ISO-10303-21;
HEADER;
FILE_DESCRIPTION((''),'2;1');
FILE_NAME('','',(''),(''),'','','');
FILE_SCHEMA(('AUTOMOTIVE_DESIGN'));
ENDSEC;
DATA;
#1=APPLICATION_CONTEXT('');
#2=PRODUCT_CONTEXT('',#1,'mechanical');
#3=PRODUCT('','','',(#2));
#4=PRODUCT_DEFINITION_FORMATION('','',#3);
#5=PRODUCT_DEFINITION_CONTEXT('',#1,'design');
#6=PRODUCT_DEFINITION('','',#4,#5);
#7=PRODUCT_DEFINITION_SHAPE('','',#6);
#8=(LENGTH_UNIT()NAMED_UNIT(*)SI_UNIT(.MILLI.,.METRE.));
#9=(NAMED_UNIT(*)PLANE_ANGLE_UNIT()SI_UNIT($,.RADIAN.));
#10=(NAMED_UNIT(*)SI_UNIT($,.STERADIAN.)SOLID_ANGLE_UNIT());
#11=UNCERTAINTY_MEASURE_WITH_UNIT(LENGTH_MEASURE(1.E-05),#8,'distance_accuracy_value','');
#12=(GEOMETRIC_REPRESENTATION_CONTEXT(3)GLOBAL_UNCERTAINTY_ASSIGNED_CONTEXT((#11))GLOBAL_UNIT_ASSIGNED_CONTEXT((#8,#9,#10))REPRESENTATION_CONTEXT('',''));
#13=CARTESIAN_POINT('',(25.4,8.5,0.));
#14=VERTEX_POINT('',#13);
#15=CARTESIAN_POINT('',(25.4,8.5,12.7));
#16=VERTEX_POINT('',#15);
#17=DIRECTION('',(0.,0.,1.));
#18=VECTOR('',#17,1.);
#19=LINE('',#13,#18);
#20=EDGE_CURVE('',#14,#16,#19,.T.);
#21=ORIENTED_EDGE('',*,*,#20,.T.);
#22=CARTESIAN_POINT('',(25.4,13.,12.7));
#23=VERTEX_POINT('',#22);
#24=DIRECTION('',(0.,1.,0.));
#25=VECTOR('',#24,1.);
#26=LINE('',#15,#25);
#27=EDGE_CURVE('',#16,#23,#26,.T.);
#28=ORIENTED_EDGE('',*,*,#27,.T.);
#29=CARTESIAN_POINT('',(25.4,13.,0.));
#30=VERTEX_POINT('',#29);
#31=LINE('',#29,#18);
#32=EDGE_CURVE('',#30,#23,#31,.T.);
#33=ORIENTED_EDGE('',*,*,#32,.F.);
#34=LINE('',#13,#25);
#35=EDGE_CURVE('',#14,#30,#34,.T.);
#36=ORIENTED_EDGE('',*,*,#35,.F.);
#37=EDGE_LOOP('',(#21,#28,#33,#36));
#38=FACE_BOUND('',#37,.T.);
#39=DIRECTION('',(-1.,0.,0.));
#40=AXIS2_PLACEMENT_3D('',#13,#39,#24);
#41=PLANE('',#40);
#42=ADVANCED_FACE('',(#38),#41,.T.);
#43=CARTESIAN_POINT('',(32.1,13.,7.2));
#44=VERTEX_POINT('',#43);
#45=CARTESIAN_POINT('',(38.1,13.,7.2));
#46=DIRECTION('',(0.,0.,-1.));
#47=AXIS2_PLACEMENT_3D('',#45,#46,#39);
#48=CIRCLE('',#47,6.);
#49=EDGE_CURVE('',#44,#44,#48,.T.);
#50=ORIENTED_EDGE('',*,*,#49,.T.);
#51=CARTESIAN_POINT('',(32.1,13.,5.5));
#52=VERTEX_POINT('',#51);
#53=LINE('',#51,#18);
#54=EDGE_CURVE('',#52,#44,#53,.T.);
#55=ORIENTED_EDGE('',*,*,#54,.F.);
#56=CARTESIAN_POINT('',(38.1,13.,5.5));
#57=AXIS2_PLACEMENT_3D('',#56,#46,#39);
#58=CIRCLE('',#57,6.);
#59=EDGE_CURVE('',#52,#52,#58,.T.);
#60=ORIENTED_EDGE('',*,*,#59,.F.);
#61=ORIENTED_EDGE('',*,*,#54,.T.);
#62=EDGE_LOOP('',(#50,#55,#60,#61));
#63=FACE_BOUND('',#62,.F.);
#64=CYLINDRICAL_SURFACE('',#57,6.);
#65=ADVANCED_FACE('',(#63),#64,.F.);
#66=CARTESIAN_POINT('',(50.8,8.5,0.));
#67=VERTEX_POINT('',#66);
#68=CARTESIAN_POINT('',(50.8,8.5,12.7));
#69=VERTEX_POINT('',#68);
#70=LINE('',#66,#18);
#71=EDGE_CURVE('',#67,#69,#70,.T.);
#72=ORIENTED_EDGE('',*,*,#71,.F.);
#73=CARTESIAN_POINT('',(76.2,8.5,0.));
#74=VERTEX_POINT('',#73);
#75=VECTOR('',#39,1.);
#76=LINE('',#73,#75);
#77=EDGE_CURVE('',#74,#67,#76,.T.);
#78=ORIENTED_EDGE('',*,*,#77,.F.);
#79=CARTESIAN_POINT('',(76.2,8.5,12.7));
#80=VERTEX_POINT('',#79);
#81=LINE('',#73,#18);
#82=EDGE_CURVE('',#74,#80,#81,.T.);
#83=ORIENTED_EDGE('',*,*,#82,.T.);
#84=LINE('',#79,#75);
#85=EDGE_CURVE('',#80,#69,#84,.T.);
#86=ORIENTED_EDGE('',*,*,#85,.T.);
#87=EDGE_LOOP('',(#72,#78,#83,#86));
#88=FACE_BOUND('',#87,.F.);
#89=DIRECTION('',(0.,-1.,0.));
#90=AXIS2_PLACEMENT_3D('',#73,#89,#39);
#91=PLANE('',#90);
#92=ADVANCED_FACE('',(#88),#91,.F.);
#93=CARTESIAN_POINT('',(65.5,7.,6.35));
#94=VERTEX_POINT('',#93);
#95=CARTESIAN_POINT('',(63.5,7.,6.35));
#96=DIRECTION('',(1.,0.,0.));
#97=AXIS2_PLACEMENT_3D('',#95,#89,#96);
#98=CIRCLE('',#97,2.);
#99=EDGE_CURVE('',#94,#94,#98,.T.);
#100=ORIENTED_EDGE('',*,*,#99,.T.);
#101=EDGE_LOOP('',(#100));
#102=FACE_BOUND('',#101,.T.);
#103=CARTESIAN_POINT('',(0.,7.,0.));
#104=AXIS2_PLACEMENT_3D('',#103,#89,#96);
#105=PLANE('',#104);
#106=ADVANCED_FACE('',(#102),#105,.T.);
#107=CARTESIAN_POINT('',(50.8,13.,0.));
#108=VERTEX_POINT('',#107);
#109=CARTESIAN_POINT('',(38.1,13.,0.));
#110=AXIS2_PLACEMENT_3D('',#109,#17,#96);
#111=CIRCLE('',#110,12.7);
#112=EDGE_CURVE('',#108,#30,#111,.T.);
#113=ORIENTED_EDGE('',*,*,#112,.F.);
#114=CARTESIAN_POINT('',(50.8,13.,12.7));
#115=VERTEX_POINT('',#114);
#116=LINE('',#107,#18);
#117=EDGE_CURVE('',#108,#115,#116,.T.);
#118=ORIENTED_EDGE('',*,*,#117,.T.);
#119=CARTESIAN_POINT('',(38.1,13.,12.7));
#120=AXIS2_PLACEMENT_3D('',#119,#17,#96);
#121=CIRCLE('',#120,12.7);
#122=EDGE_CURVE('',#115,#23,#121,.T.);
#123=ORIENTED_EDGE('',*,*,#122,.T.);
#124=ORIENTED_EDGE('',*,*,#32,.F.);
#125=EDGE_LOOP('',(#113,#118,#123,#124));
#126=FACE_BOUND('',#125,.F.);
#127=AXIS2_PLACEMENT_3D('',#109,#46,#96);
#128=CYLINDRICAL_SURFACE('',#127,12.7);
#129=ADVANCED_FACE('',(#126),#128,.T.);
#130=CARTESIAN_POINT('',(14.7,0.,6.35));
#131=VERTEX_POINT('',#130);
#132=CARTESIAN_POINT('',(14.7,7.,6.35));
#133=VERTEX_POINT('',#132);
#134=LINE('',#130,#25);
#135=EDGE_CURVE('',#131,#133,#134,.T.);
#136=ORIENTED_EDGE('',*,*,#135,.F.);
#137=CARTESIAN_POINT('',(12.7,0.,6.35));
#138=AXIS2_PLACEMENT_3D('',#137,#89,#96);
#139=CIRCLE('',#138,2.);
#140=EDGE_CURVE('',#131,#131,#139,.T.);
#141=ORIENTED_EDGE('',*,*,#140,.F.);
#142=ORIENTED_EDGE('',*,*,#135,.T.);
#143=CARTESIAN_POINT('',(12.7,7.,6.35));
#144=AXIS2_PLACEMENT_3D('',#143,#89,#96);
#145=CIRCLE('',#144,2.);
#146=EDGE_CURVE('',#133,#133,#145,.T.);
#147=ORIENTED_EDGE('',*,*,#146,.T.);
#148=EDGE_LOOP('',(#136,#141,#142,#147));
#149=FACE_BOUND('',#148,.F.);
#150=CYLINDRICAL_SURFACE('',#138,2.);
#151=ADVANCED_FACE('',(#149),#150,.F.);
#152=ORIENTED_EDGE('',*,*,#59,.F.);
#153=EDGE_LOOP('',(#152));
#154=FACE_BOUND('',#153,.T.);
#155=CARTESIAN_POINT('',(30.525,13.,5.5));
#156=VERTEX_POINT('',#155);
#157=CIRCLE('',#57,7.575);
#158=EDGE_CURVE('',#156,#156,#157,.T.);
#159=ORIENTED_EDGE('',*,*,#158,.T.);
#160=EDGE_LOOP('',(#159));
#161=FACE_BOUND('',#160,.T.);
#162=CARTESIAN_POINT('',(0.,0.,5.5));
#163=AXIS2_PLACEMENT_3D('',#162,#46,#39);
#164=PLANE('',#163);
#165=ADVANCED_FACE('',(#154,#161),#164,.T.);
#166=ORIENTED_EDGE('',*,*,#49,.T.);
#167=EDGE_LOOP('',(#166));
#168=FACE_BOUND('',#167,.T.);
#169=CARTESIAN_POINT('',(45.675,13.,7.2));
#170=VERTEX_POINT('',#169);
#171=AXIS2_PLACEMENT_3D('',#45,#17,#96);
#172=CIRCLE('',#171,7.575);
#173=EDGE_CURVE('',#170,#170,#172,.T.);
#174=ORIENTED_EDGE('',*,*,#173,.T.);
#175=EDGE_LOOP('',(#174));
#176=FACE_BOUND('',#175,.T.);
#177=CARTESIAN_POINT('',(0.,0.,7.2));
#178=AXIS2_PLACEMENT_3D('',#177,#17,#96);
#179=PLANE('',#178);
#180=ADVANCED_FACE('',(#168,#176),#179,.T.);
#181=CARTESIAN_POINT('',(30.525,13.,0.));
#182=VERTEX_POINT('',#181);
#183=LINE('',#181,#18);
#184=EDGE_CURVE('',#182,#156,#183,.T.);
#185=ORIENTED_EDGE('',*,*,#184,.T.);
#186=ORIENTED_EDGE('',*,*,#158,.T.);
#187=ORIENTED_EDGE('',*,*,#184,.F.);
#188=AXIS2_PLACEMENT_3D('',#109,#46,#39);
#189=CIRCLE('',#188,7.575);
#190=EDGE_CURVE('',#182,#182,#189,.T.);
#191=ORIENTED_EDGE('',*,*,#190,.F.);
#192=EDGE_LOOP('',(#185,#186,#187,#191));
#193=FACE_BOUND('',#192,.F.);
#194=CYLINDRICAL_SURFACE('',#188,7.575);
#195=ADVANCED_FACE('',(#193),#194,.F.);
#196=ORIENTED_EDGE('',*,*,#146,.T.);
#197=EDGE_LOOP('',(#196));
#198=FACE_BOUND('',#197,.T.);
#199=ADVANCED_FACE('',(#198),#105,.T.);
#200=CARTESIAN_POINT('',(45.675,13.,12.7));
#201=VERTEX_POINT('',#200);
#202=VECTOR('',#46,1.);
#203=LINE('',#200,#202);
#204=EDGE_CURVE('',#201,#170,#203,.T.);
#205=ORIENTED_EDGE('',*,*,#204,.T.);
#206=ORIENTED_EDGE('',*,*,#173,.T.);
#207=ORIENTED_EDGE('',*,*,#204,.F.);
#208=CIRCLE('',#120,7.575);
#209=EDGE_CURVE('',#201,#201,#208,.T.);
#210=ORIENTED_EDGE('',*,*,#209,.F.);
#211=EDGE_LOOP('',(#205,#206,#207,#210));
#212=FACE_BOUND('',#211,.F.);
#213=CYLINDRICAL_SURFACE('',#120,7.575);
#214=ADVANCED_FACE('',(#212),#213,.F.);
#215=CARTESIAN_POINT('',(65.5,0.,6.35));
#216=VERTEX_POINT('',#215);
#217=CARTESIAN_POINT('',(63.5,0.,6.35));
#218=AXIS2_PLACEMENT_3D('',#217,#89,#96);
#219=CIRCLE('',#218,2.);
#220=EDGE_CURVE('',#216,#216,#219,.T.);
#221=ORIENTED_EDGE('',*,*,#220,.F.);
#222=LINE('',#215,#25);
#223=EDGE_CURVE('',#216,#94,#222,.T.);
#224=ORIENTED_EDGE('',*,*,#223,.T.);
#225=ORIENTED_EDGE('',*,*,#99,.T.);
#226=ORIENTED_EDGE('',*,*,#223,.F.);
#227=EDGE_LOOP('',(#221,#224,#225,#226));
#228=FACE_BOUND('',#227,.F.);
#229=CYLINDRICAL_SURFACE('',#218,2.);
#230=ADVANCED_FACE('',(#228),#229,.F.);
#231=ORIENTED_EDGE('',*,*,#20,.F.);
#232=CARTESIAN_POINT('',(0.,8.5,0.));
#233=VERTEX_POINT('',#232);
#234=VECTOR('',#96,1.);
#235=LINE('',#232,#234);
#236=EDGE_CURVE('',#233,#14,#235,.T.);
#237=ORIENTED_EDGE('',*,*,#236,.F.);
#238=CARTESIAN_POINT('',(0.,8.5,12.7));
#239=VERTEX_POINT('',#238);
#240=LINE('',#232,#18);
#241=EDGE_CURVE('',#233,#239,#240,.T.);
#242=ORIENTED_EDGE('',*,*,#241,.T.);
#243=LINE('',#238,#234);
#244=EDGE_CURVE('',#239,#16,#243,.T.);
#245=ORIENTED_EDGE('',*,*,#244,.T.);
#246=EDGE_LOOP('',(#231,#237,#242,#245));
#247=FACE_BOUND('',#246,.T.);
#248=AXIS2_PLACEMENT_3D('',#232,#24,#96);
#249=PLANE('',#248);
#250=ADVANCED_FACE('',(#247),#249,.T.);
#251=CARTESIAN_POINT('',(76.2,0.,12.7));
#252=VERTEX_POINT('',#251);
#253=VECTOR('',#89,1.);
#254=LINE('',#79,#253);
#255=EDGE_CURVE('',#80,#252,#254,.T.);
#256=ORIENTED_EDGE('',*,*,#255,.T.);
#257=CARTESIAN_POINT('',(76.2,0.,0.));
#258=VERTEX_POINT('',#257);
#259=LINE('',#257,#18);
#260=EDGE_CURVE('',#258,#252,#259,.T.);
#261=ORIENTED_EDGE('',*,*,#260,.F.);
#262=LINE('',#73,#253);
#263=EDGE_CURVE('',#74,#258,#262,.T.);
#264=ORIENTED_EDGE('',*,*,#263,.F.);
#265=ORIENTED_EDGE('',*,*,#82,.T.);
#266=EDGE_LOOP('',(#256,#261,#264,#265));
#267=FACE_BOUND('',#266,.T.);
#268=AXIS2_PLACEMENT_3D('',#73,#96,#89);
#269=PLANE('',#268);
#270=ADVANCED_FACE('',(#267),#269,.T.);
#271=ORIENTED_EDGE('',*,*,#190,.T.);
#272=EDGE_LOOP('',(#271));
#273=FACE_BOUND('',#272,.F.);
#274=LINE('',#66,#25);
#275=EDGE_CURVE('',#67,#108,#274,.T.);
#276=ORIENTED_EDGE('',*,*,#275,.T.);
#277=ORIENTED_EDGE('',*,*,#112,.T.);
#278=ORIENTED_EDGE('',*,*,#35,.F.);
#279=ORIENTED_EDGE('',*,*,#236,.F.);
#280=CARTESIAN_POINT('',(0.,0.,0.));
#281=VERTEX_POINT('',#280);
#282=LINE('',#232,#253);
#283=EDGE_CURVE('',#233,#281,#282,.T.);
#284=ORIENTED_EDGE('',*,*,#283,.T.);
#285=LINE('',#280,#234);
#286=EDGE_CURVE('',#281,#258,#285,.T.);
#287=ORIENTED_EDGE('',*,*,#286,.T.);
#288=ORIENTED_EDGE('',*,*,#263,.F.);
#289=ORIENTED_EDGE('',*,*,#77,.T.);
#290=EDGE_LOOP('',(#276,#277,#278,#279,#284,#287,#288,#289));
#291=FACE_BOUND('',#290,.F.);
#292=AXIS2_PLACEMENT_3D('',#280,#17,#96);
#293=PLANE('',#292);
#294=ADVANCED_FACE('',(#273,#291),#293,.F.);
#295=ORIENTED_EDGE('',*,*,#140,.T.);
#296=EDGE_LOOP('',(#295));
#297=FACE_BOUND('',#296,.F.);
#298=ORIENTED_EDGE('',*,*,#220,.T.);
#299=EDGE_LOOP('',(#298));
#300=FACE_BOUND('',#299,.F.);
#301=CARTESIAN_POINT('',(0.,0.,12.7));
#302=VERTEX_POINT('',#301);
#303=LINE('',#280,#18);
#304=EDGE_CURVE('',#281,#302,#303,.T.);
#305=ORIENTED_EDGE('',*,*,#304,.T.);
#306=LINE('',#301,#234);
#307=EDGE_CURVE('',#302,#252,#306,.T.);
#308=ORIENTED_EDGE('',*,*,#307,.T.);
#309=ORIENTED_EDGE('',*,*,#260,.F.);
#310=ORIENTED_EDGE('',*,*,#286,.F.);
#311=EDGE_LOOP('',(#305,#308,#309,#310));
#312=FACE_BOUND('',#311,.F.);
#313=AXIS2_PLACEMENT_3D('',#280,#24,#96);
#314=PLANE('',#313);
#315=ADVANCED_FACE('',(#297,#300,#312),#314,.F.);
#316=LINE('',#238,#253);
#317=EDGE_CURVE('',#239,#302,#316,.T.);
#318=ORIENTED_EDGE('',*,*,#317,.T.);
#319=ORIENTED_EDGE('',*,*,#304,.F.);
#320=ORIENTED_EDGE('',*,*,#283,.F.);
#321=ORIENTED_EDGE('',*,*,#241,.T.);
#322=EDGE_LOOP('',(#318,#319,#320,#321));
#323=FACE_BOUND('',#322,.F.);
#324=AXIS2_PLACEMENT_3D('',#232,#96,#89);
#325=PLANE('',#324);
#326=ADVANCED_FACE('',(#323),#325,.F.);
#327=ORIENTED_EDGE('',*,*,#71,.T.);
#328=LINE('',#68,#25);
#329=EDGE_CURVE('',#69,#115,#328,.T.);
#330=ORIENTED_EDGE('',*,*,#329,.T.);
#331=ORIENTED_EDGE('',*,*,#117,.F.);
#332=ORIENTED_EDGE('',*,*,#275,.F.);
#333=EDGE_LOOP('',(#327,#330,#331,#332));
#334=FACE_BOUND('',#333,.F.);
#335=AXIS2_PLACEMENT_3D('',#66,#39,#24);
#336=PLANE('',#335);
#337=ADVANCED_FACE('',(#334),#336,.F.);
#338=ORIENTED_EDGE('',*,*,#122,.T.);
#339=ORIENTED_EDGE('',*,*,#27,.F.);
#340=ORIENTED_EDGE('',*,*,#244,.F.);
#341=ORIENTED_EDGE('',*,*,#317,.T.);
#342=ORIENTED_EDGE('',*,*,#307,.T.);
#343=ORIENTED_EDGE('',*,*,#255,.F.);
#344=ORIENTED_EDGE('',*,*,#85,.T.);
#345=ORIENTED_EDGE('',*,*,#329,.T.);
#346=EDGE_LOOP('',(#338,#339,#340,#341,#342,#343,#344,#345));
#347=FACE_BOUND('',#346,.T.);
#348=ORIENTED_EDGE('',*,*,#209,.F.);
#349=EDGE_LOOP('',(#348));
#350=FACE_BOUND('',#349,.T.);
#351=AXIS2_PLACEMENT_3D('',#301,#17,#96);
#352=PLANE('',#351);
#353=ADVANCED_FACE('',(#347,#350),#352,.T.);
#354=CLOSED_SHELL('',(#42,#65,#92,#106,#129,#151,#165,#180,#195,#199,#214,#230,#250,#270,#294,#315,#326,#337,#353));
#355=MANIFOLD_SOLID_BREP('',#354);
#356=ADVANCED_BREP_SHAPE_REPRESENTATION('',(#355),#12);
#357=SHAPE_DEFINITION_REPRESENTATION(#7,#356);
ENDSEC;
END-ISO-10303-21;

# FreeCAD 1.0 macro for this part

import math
import FreeCAD as App
import Part
import Sketcher

V = App.Vector
Q = App.Units.Quantity

doc = App.newDocument("Part")
body = doc.addObject("PartDesign::Body", "Body")

# Sketch on XY plane
sketch1 = doc.addObject("Sketcher::SketchObject", "Sketch")
body.addObject(sketch1)
sketch1.AttachmentSupport = (doc.XY_Plane, [""])
sketch1.MapMode = "FlatFace"
sketch1.addGeometry(Part.LineSegment(V(0, 8.5, 0), V(0, 0, 0)), False)
sketch1.addGeometry(Part.LineSegment(V(0, 0, 0), V(76.2, 0, 0)), False)
sketch1.addGeometry(Part.LineSegment(V(76.2, 0, 0), V(76.2, 8.5, 0)), False)
sketch1.addGeometry(Part.LineSegment(V(76.2, 8.5, 0), V(50.8, 8.5, 0)), False)
sketch1.addGeometry(Part.LineSegment(V(50.8, 8.5, 0), V(50.8, 13, 0)), False)
sketch1.addGeometry(Part.ArcOfCircle(Part.Circle(V(38.1, 13, 0), V(0, 0, 1), 12.7), math.radians(0), math.radians(180)), False)
sketch1.addGeometry(Part.LineSegment(V(25.4, 13, 0), V(25.4, 8.5, 0)), False)
sketch1.addGeometry(Part.LineSegment(V(25.4, 8.5, 0), V(0, 8.5, 0)), False)
sketch1.addConstraint(Sketcher.Constraint("Coincident", 0, 2, 1, 1))
sketch1.addConstraint(Sketcher.Constraint("Coincident", 1, 2, 2, 1))
sketch1.addConstraint(Sketcher.Constraint("Coincident", 2, 2, 3, 1))
sketch1.addConstraint(Sketcher.Constraint("Coincident", 3, 2, 4, 1))
sketch1.addConstraint(Sketcher.Constraint("Tangent", 4, 2, 5, 1))
sketch1.addConstraint(Sketcher.Constraint("Tangent", 5, 2, 6, 1))
sketch1.addConstraint(Sketcher.Constraint("Coincident", 6, 2, 7, 1))
sketch1.addConstraint(Sketcher.Constraint("Coincident", 7, 2, 0, 1))
sketch1.addConstraint(Sketcher.Constraint("Vertical", 0))
sketch1.addConstraint(Sketcher.Constraint("Horizontal", 1))
sketch1.addConstraint(Sketcher.Constraint("Vertical", 2))
sketch1.addConstraint(Sketcher.Constraint("Horizontal", 3))
sketch1.addConstraint(Sketcher.Constraint("Vertical", 4))
sketch1.addConstraint(Sketcher.Constraint("Vertical", 6))
sketch1.addConstraint(Sketcher.Constraint("Horizontal", 7))
sketch1.addConstraint(Sketcher.Constraint("Coincident", 0, 2, -1, 1))
sketch1.addConstraint(Sketcher.Constraint("Horizontal", 3, 2, 6, 2))
sketch1.addConstraint(Sketcher.Constraint("Equal", 3, 7))
sketch1.addConstraint(Sketcher.Constraint("Radius", 5, Q("12.7 mm")))
sketch1.addConstraint(Sketcher.Constraint("DistanceX", 1, 1, 1, 2, Q("76.2 mm")))
sketch1.addConstraint(Sketcher.Constraint("DistanceY", 0, 2, 0, 1, Q("8.5 mm")))
sketch1.addConstraint(Sketcher.Constraint("DistanceY", -1, 1, 5, 3, Q("13 mm")))
pad1 = doc.addObject("PartDesign::Pad", "Pad")
body.addObject(pad1)
pad1.Profile = sketch1
pad1.Length = 12.7

# Sketch on XY plane
sketch2 = doc.addObject("Sketcher::SketchObject", "Sketch001")
body.addObject(sketch2)
sketch2.AttachmentSupport = (doc.XY_Plane, [""])
sketch2.MapMode = "FlatFace"
sketch2.AttachmentOffset = App.Placement(V(0, 0, 12.7), App.Rotation())
sketch2.addGeometry(Part.Circle(V(38.1, 13, 0), V(0, 0, 1), 7.575), False)
sketch2.addConstraint(Sketcher.Constraint("Diameter", 0, Q("15.15 mm")))
sketch2.addConstraint(Sketcher.Constraint("DistanceY", -1, 1, 0, 3, Q("13 mm")))
sketch2.addConstraint(Sketcher.Constraint("DistanceX", -1, 1, 0, 3, Q("38.1 mm")))
pocket1 = doc.addObject("PartDesign::Pocket", "Pocket")
body.addObject(pocket1)
pocket1.Profile = sketch2
pocket1.Length = 5.5

# Sketch on XY plane
sketch3 = doc.addObject("Sketcher::SketchObject", "Sketch002")
body.addObject(sketch3)
sketch3.AttachmentSupport = (doc.XY_Plane, [""])
sketch3.MapMode = "FlatFace"
sketch3.addGeometry(Part.Circle(V(38.1, 13, 0), V(0, 0, 1), 7.575), False)
sketch3.addConstraint(Sketcher.Constraint("Diameter", 0, Q("15.15 mm")))
sketch3.addConstraint(Sketcher.Constraint("DistanceY", -1, 1, 0, 3, Q("13 mm")))
sketch3.addConstraint(Sketcher.Constraint("DistanceX", -1, 1, 0, 3, Q("38.1 mm")))
pocket2 = doc.addObject("PartDesign::Pocket", "Pocket001")
body.addObject(pocket2)
pocket2.Profile = sketch3
pocket2.Length = 5.5
pocket2.Reversed = True

# Sketch on XZ plane
sketch4 = doc.addObject("Sketcher::SketchObject", "Sketch003")
body.addObject(sketch4)
sketch4.AttachmentSupport = (doc.XZ_Plane, [""])
sketch4.MapMode = "FlatFace"
sketch4.addGeometry(Part.Circle(V(12.7, 6.35, 0), V(0, 0, 1), 2), False)
sketch4.addGeometry(Part.Circle(V(63.5, 6.35, 0), V(0, 0, 1), 2), False)
sketch4.addConstraint(Sketcher.Constraint("Equal", 0, 1))
sketch4.addConstraint(Sketcher.Constraint("Horizontal", 0, 3, 1, 3))
sketch4.addConstraint(Sketcher.Constraint("Diameter", 0, Q("4 mm")))
sketch4.addConstraint(Sketcher.Constraint("DistanceX", -1, 1, 0, 3, Q("12.7 mm")))
sketch4.addConstraint(Sketcher.Constraint("DistanceX", 0, 3, 1, 3, Q("50.8 mm")))
sketch4.addConstraint(Sketcher.Constraint("DistanceY", -1, 1, 0, 3, Q("6.35 mm")))
pocket3 = doc.addObject("PartDesign::Pocket", "Pocket002")
body.addObject(pocket3)
pocket3.Profile = sketch4
pocket3.Length = 7

# Sketch on XY plane
sketch5 = doc.addObject("Sketcher::SketchObject", "Sketch004")
body.addObject(sketch5)
sketch5.AttachmentSupport = (doc.XY_Plane, [""])
sketch5.MapMode = "FlatFace"
sketch5.AttachmentOffset = App.Placement(V(0, 0, 5.5), App.Rotation())
sketch5.addGeometry(Part.Circle(V(38.1, 13, 0), V(0, 0, 1), 6), False)
sketch5.addConstraint(Sketcher.Constraint("Diameter", 0, Q("12 mm")))
sketch5.addConstraint(Sketcher.Constraint("DistanceY", -1, 1, 0, 3, Q("13 mm")))
sketch5.addConstraint(Sketcher.Constraint("DistanceX", -1, 1, 0, 3, Q("38.1 mm")))
pocket4 = doc.addObject("PartDesign::Pocket", "Pocket003")
body.addObject(pocket4)
pocket4.Profile = sketch5
pocket4.Type = "ThroughAll"
pocket4.Reversed = True

doc.recompute()
